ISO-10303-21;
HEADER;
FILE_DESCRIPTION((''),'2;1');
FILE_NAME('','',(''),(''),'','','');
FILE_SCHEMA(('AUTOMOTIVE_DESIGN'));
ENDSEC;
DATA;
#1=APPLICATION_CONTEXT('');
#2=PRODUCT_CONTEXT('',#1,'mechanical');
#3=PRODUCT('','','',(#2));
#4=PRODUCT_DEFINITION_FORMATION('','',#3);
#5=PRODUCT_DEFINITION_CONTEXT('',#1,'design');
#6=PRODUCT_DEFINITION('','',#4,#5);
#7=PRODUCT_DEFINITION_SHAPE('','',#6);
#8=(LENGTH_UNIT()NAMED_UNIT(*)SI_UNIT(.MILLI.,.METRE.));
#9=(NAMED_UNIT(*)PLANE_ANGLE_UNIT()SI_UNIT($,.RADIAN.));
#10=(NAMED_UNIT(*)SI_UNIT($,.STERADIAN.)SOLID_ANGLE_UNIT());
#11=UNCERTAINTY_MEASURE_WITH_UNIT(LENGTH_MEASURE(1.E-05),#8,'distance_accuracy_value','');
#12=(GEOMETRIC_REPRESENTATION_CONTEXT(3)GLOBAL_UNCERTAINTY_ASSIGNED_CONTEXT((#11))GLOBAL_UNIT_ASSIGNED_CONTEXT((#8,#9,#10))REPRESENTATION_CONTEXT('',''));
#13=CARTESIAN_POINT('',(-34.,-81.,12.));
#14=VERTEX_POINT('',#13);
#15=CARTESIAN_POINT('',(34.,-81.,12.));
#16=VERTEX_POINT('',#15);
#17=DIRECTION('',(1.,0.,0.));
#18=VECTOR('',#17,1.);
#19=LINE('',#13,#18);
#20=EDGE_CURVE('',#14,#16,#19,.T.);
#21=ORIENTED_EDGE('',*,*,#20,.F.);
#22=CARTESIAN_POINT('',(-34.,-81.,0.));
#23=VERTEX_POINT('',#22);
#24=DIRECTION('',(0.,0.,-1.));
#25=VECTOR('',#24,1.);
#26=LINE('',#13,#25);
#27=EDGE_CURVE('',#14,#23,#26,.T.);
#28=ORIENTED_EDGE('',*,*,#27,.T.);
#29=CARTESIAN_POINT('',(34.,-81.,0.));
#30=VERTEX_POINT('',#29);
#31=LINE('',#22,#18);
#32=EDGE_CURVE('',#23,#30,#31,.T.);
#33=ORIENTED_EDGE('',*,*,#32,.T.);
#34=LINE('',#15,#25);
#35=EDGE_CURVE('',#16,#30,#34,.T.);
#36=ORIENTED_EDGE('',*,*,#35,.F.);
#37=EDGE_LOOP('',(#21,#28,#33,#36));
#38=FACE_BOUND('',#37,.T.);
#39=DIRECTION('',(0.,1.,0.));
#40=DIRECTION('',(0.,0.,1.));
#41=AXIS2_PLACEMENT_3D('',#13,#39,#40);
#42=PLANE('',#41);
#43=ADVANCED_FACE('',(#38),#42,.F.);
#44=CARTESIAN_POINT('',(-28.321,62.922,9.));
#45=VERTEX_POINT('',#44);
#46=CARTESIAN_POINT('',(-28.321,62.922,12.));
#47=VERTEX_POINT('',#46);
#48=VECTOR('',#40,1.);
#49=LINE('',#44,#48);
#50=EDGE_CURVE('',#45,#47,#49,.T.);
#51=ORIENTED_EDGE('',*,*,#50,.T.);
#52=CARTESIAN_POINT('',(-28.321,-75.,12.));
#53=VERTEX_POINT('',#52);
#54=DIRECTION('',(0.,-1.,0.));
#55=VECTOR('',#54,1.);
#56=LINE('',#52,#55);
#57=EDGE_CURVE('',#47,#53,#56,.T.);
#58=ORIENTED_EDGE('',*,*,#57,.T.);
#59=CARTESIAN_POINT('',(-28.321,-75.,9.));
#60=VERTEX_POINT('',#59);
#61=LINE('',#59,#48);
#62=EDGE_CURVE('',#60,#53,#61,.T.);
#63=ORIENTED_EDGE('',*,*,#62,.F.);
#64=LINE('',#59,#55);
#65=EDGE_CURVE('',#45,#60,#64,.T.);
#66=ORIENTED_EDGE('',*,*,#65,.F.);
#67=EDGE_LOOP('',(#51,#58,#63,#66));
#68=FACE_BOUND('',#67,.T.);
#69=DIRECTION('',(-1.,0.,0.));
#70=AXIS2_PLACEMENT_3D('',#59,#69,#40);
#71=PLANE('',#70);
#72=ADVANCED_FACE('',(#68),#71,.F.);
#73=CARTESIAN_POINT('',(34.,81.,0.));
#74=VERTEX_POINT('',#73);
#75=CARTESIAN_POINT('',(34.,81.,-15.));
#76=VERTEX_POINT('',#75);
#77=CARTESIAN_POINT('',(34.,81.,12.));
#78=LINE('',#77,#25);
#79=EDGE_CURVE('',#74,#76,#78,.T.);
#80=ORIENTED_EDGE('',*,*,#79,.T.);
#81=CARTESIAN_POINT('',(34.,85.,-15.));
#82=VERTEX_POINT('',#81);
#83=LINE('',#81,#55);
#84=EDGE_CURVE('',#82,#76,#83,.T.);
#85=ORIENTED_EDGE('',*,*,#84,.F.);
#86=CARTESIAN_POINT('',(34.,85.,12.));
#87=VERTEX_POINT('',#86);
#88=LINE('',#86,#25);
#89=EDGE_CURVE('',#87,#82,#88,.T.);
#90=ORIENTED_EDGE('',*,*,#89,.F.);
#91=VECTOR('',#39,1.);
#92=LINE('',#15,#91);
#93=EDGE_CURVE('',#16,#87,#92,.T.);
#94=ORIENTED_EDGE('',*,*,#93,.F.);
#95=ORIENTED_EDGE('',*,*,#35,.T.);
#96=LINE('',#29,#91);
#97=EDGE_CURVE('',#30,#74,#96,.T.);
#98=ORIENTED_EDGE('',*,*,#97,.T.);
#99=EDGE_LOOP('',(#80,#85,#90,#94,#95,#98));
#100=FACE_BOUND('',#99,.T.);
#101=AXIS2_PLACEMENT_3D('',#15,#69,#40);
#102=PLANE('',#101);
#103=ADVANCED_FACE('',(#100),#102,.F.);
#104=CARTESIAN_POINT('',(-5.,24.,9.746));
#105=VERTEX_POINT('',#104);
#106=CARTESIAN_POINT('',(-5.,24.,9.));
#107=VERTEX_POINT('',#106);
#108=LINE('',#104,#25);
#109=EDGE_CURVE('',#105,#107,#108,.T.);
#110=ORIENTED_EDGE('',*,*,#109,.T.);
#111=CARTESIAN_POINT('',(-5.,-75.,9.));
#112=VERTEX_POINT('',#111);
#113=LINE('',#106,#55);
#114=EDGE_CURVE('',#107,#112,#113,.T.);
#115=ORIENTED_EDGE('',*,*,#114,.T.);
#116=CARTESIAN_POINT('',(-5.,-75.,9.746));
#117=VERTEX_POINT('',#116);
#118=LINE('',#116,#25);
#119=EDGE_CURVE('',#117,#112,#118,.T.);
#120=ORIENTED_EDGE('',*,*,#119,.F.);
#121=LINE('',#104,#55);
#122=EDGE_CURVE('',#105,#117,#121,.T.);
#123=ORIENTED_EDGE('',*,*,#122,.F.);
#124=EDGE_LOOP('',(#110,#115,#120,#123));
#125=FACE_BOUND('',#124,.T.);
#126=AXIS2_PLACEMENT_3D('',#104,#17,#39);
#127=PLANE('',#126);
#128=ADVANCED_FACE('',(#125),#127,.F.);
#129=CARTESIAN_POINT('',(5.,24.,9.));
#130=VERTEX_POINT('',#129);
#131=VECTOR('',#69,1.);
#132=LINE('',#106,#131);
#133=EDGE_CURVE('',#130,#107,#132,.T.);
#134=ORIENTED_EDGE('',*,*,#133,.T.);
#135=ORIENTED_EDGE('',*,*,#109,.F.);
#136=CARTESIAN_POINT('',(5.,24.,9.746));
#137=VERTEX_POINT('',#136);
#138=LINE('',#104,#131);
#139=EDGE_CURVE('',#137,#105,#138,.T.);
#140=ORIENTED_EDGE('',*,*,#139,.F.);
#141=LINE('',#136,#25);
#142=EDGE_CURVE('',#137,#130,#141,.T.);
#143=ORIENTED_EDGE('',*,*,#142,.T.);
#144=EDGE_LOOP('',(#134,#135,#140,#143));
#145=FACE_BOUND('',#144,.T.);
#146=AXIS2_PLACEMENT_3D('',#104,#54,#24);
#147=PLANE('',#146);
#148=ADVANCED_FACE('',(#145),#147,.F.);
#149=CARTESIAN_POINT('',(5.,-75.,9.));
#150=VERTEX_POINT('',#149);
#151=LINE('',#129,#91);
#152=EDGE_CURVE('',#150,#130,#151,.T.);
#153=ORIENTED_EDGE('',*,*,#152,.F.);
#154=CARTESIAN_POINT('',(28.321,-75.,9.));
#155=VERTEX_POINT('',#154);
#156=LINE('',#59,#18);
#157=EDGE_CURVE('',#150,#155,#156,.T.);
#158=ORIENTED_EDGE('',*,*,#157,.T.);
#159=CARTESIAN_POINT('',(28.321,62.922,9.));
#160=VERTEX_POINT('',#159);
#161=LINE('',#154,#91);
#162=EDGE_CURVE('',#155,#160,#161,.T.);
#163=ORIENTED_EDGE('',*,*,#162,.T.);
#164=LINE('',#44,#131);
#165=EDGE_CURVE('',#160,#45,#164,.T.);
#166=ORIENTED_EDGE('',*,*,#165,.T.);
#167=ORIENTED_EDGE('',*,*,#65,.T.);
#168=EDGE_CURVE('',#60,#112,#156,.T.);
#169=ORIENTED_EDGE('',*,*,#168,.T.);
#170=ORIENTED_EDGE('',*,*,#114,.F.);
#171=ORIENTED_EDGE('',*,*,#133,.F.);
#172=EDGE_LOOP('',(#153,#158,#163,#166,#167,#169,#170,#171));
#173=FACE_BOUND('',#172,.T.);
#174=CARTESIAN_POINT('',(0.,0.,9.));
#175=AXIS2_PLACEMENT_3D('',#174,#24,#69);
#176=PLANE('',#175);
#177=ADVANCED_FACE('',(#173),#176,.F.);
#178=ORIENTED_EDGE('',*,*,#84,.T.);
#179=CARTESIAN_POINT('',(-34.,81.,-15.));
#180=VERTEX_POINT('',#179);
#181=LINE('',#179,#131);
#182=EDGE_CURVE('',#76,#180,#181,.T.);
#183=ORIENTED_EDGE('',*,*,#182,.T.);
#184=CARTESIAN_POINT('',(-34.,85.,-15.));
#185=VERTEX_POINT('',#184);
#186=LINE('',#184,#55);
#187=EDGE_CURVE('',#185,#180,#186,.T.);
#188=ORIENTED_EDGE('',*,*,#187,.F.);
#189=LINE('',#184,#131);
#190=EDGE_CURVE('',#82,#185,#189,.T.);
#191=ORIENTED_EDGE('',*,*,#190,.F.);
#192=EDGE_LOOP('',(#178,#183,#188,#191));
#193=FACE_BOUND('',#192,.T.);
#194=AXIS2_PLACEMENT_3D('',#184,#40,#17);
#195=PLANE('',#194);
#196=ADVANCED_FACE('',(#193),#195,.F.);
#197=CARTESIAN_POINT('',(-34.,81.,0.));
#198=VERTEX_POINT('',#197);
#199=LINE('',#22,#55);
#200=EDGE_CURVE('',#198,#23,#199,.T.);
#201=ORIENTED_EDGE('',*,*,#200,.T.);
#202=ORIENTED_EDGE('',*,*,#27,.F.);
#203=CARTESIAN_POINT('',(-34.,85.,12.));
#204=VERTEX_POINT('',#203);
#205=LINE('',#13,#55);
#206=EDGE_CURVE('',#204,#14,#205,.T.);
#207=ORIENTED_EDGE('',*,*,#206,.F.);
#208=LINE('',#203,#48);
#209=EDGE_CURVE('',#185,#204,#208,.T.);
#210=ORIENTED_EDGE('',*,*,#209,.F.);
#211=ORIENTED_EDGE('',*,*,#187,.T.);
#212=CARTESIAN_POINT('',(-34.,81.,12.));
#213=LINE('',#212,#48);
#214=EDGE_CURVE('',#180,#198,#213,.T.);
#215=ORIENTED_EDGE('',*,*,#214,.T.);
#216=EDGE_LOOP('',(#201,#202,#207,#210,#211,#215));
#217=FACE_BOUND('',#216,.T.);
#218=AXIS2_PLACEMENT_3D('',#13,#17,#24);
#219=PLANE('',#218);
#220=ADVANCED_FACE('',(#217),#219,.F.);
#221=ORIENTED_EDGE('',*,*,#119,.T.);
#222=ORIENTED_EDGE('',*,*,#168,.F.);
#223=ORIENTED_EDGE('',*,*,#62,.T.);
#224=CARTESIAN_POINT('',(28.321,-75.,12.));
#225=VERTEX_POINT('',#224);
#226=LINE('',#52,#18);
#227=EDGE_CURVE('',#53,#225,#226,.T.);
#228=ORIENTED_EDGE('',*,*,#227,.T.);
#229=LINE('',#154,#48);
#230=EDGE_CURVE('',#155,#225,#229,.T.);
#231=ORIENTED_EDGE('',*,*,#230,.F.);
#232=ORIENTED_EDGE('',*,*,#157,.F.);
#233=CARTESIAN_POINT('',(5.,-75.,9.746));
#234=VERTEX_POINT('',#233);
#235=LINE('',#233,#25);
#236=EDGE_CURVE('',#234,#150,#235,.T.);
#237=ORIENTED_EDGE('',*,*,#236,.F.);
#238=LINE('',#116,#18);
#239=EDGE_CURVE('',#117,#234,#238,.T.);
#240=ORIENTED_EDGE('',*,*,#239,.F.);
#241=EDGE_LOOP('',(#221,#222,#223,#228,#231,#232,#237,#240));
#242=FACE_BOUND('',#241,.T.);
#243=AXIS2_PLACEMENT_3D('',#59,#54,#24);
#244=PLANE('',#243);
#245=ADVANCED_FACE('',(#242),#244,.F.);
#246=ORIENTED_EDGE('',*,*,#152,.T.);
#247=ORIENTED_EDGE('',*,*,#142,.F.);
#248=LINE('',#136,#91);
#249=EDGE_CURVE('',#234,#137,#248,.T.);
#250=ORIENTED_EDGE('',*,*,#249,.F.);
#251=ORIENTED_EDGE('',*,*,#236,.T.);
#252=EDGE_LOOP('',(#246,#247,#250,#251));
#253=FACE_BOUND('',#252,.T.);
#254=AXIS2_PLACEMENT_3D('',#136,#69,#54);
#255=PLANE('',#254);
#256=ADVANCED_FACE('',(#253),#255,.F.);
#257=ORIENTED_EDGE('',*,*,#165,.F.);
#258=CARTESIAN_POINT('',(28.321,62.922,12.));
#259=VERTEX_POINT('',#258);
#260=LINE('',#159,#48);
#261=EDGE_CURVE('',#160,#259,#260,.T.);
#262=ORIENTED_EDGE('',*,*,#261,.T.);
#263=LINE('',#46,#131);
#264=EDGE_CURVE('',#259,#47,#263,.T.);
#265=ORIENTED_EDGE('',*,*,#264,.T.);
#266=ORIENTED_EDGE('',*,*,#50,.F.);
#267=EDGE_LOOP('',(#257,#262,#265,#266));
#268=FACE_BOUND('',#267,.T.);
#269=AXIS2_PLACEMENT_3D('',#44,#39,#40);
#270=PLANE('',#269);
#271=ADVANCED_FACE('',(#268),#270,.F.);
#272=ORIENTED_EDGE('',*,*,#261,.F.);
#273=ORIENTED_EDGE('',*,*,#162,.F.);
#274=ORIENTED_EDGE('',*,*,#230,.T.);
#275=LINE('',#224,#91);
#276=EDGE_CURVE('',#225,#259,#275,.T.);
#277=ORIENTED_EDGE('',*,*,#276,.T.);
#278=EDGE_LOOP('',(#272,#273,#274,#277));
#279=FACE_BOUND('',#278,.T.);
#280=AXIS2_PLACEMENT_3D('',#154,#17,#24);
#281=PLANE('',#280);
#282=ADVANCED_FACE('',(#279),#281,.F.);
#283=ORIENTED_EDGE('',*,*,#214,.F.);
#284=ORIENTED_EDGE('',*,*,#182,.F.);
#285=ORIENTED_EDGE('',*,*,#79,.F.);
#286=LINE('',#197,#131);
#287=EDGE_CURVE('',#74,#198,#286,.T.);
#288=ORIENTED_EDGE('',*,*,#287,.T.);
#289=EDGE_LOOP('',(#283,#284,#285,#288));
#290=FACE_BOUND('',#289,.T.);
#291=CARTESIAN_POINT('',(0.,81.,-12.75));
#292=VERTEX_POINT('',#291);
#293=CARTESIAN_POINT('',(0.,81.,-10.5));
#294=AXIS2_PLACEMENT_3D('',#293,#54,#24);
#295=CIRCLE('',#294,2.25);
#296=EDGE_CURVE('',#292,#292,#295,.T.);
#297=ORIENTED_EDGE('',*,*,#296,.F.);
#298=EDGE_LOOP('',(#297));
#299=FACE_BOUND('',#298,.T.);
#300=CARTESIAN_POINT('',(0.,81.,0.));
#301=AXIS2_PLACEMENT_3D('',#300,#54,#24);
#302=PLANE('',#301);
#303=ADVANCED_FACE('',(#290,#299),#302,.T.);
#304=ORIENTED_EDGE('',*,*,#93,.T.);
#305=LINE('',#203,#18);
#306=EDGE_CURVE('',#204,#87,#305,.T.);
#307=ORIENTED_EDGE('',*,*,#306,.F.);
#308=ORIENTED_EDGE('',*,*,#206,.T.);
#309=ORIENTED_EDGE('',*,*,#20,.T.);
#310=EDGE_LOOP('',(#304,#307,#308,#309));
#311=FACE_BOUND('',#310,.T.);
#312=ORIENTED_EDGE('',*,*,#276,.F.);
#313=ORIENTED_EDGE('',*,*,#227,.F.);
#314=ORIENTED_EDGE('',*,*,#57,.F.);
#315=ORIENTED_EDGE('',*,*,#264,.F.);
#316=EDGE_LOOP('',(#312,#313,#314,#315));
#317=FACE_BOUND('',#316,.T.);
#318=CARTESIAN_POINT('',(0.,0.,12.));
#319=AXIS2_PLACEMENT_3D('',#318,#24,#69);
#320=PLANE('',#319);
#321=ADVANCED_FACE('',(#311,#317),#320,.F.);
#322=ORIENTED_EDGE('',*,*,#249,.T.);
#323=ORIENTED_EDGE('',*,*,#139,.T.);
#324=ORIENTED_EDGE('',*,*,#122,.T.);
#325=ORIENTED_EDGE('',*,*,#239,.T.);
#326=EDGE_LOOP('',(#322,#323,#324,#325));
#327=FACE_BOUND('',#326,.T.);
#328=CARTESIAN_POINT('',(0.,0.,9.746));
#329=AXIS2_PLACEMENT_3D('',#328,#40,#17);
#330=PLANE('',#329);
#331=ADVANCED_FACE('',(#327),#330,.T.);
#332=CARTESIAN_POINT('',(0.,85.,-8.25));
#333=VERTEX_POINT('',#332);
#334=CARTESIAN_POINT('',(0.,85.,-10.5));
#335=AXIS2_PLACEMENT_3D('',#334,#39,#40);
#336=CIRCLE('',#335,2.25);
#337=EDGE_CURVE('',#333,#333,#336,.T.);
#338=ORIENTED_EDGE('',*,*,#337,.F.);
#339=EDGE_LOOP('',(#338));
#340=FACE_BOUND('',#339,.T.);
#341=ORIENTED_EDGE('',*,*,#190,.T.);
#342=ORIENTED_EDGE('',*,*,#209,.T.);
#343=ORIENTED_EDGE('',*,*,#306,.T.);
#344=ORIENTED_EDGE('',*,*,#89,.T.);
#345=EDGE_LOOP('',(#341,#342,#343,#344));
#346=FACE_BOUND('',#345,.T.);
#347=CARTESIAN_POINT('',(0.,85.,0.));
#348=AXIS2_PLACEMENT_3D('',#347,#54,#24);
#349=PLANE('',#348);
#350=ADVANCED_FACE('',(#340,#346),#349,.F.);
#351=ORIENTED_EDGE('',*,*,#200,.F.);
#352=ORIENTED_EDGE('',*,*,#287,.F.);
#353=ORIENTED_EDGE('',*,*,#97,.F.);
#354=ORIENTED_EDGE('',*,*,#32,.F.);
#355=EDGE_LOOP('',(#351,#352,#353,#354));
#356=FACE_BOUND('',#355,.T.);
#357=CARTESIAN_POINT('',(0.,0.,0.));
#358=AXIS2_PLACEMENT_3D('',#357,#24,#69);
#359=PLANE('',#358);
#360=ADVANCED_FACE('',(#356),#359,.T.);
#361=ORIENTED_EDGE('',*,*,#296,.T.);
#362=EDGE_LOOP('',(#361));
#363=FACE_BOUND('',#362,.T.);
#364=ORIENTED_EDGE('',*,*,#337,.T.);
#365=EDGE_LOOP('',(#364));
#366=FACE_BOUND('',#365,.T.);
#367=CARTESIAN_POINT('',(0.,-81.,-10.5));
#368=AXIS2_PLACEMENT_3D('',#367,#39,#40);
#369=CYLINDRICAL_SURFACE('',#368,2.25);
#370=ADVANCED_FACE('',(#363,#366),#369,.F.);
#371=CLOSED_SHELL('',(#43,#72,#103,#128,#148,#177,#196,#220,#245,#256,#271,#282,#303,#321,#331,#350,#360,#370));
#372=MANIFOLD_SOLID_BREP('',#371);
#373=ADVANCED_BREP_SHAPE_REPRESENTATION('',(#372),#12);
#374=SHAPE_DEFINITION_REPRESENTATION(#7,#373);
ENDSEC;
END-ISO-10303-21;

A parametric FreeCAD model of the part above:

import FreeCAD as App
import Part
import Sketcher
Q = App.Units.Quantity

doc = App.newDocument("Part")
params = doc.addObject("Spreadsheet::Sheet", "Params")
for row, (alias, value) in enumerate([
    ("sketch1_width", "68 mm"),
    ("sketch1_height", "162 mm"),
    ("pad1_length", "12 mm"),
    ("sketch2_width", "68 mm"),
    ("sketch2_height", "27 mm"),
    ("pad2_length", "4 mm"),
    ("sketch3_diameter", "4.5 mm"),
    ("pocket2_length", "3 mm"),
    ("sketch5_width", "10 mm"),
    ("sketch5_height", "99 mm"),
    ("pad3_length", "0.746 mm"),
], start=1):
    params.set(f"A{row}", alias)
    params.set(f"B{row}", "=" + value)
    params.setAlias(f"B{row}", alias)

body = doc.addObject("PartDesign::Body", "Body")

sketch1 = doc.addObject("Sketcher::SketchObject", "Sketch")
body.addObject(sketch1)
sketch1.AttachmentSupport = (doc.XY_Plane, [""])
sketch1.MapMode = "FlatFace"
sketch1.addGeometry(Part.LineSegment(App.Vector(-34, 81, 0), App.Vector(-34, -81, 0)), False)
sketch1.addGeometry(Part.LineSegment(App.Vector(-34, -81, 0), App.Vector(34, -81, 0)), False)
sketch1.addGeometry(Part.LineSegment(App.Vector(34, -81, 0), App.Vector(34, 81, 0)), False)
sketch1.addGeometry(Part.LineSegment(App.Vector(34, 81, 0), App.Vector(-34, 81, 0)), False)
sketch1.addConstraint(Sketcher.Constraint("Coincident", 0, 2, 1, 1))
sketch1.addConstraint(Sketcher.Constraint("Coincident", 1, 2, 2, 1))
sketch1.addConstraint(Sketcher.Constraint("Coincident", 2, 2, 3, 1))
sketch1.addConstraint(Sketcher.Constraint("Coincident", 3, 2, 0, 1))
sketch1.addConstraint(Sketcher.Constraint("Vertical", 0))
sketch1.addConstraint(Sketcher.Constraint("Horizontal", 1))
sketch1.addConstraint(Sketcher.Constraint("Vertical", 2))
sketch1.addConstraint(Sketcher.Constraint("Horizontal", 3))
sketch1.addConstraint(Sketcher.Constraint("Symmetric", 0, 2, 2, 2, -1, 1))
sketch1.addConstraint(Sketcher.Constraint("DistanceX", 1, 1, 1, 2, Q("68 mm")))
sketch1.addConstraint(Sketcher.Constraint("DistanceY", 0, 2, 0, 1, Q("162 mm")))
sketch1.setExpression("Constraints[9]", "Params.sketch1_width")
sketch1.setExpression("Constraints[10]", "Params.sketch1_height")
pad1 = doc.addObject("PartDesign::Pad", "Pad")
body.addObject(pad1)
pad1.Profile = sketch1
pad1.setExpression("Length", "Params.pad1_length")

sketch2 = doc.addObject("Sketcher::SketchObject", "Sketch001")
body.addObject(sketch2)
sketch2.AttachmentSupport = (doc.XZ_Plane, [""])
sketch2.MapMode = "FlatFace"
sketch2.AttachmentOffset = App.Placement(App.Vector(0, 0, -81), App.Rotation())
sketch2.addGeometry(Part.LineSegment(App.Vector(-34, -15, 0), App.Vector(-34, 12, 0)), False)
sketch2.addGeometry(Part.LineSegment(App.Vector(-34, 12, 0), App.Vector(34, 12, 0)), False)
sketch2.addGeometry(Part.LineSegment(App.Vector(34, 12, 0), App.Vector(34, -15, 0)), False)
sketch2.addGeometry(Part.LineSegment(App.Vector(34, -15, 0), App.Vector(-34, -15, 0)), False)
sketch2.addConstraint(Sketcher.Constraint("Coincident", 0, 2, 1, 1))
sketch2.addConstraint(Sketcher.Constraint("Coincident", 1, 2, 2, 1))
sketch2.addConstraint(Sketcher.Constraint("Coincident", 2, 2, 3, 1))
sketch2.addConstraint(Sketcher.Constraint("Coincident", 3, 2, 0, 1))
sketch2.addConstraint(Sketcher.Constraint("Vertical", 0))
sketch2.addConstraint(Sketcher.Constraint("Horizontal", 1))
sketch2.addConstraint(Sketcher.Constraint("Vertical", 2))
sketch2.addConstraint(Sketcher.Constraint("Horizontal", 3))
sketch2.addConstraint(Sketcher.Constraint("DistanceX", 1, 1, 1, 2, Q("68 mm")))
sketch2.addConstraint(Sketcher.Constraint("DistanceY", 0, 1, 0, 2, Q("27 mm")))
sketch2.addConstraint(Sketcher.Constraint("DistanceX", 0, 2, -1, 1, Q("34 mm")))
sketch2.addConstraint(Sketcher.Constraint("DistanceY", -1, 1, 0, 2, Q("12 mm")))
sketch2.setExpression("Constraints[8]", "Params.sketch2_width")
sketch2.setExpression("Constraints[9]", "Params.sketch2_height")
pad2 = doc.addObject("PartDesign::Pad", "Pad001")
body.addObject(pad2)
pad2.Profile = sketch2
pad2.setExpression("Length", "Params.pad2_length")
pad2.Reversed = True

sketch3 = doc.addObject("Sketcher::SketchObject", "Sketch002")
body.addObject(sketch3)
sketch3.AttachmentSupport = (doc.XZ_Plane, [""])
sketch3.MapMode = "FlatFace"
sketch3.AttachmentOffset = App.Placement(App.Vector(0, 0, -85), App.Rotation())
sketch3.addGeometry(Part.Circle(App.Vector(0, -10.5, 0), App.Vector(0, 0, 1), 2.2), False)
sketch3.addConstraint(Sketcher.Constraint("PointOnObject", 0, 3, -2))
sketch3.addConstraint(Sketcher.Constraint("Diameter", 0, Q("4.5 mm")))
sketch3.addConstraint(Sketcher.Constraint("DistanceY", 0, 3, -1, 1, Q("10.5 mm")))
sketch3.setExpression("Constraints[1]", "Params.sketch3_diameter")
pocket1 = doc.addObject("PartDesign::Pocket", "Pocket")
body.addObject(pocket1)
pocket1.Profile = sketch3
pocket1.Type = "ThroughAll"
pocket1.Reversed = True

sketch4 = doc.addObject("Sketcher::SketchObject", "Sketch003")
body.addObject(sketch4)
sketch4.AttachmentSupport = (doc.XY_Plane, [""])
sketch4.MapMode = "FlatFace"
sketch4.AttachmentOffset = App.Placement(App.Vector(0, 0, 12), App.Rotation())
sketch4.addGeometry(Part.LineSegment(App.Vector(-28, 63, 0), App.Vector(-28, -75, 0)), False)
sketch4.addGeometry(Part.LineSegment(App.Vector(-28, -75, 0), App.Vector(28, -75, 0)), False)
sketch4.addGeometry(Part.LineSegment(App.Vector(28, -75, 0), App.Vector(28, 63, 0)), False)
sketch4.addGeometry(Part.LineSegment(App.Vector(28, 63, 0), App.Vector(-28, 63, 0)), False)
sketch4.addConstraint(Sketcher.Constraint("Coincident", 0, 2, 1, 1))
sketch4.addConstraint(Sketcher.Constraint("Coincident", 1, 2, 2, 1))
sketch4.addConstraint(Sketcher.Constraint("Coincident", 2, 2, 3, 1))
sketch4.addConstraint(Sketcher.Constraint("Coincident", 3, 2, 0, 1))
sketch4.addConstraint(Sketcher.Constraint("Vertical", 0))
sketch4.addConstraint(Sketcher.Constraint("Horizontal", 1))
sketch4.addConstraint(Sketcher.Constraint("Vertical", 2))
sketch4.addConstraint(Sketcher.Constraint("Horizontal", 3))
sketch4.addConstraint(Sketcher.Constraint("DistanceY", 0, 2, -1, 1, Q("75 mm")))
sketch4.addConstraint(Sketcher.Constraint("DistanceX", 1, 1, 1, 2, Q("56.642 mm")))
sketch4.addConstraint(Sketcher.Constraint("DistanceY", 0, 2, 0, 1, Q("137.922 mm")))
sketch4.addConstraint(Sketcher.Constraint("DistanceX", 0, 2, -1, 1, Q("28.321 mm")))
pocket2 = doc.addObject("PartDesign::Pocket", "Pocket001")
body.addObject(pocket2)
pocket2.Profile = sketch4
pocket2.setExpression("Length", "Params.pocket2_length")

sketch5 = doc.addObject("Sketcher::SketchObject", "Sketch004")
body.addObject(sketch5)
sketch5.AttachmentSupport = (doc.XY_Plane, [""])
sketch5.MapMode = "FlatFace"
sketch5.AttachmentOffset = App.Placement(App.Vector(0, 0, 9), App.Rotation())
sketch5.addGeometry(Part.LineSegment(App.Vector(-5, 24, 0), App.Vector(-5, -75, 0)), False)
sketch5.addGeometry(Part.LineSegment(App.Vector(-5, -75, 0), App.Vector(5, -75, 0)), False)
sketch5.addGeometry(Part.LineSegment(App.Vector(5, -75, 0), App.Vector(5, 24, 0)), False)
sketch5.addGeometry(Part.LineSegment(App.Vector(5, 24, 0), App.Vector(-5, 24, 0)), False)
sketch5.addConstraint(Sketcher.Constraint("Coincident", 0, 2, 1, 1))
sketch5.addConstraint(Sketcher.Constraint("Coincident", 1, 2, 2, 1))
sketch5.addConstraint(Sketcher.Constraint("Coincident", 2, 2, 3, 1))
sketch5.addConstraint(Sketcher.Constraint("Coincident", 3, 2, 0, 1))
sketch5.addConstraint(Sketcher.Constraint("Vertical", 0))
sketch5.addConstraint(Sketcher.Constraint("Horizontal", 1))
sketch5.addConstraint(Sketcher.Constraint("Vertical", 2))
sketch5.addConstraint(Sketcher.Constraint("Horizontal", 3))
sketch5.addConstraint(Sketcher.Constraint("DistanceX", 1, 1, 1, 2, Q("10 mm")))
sketch5.addConstraint(Sketcher.Constraint("DistanceY", 0, 2, 0, 1, Q("99 mm")))
sketch5.addConstraint(Sketcher.Constraint("DistanceX", 0, 2, -1, 1, Q("5 mm")))
sketch5.addConstraint(Sketcher.Constraint("DistanceY", 0, 2, -1, 1, Q("75 mm")))
sketch5.setExpression("Constraints[8]", "Params.sketch5_width")
sketch5.setExpression("Constraints[9]", "Params.sketch5_height")
pad3 = doc.addObject("PartDesign::Pad", "Pad002")
body.addObject(pad3)
pad3.Profile = sketch5
pad3.setExpression("Length", "Params.pad3_length")

doc.recompute()
